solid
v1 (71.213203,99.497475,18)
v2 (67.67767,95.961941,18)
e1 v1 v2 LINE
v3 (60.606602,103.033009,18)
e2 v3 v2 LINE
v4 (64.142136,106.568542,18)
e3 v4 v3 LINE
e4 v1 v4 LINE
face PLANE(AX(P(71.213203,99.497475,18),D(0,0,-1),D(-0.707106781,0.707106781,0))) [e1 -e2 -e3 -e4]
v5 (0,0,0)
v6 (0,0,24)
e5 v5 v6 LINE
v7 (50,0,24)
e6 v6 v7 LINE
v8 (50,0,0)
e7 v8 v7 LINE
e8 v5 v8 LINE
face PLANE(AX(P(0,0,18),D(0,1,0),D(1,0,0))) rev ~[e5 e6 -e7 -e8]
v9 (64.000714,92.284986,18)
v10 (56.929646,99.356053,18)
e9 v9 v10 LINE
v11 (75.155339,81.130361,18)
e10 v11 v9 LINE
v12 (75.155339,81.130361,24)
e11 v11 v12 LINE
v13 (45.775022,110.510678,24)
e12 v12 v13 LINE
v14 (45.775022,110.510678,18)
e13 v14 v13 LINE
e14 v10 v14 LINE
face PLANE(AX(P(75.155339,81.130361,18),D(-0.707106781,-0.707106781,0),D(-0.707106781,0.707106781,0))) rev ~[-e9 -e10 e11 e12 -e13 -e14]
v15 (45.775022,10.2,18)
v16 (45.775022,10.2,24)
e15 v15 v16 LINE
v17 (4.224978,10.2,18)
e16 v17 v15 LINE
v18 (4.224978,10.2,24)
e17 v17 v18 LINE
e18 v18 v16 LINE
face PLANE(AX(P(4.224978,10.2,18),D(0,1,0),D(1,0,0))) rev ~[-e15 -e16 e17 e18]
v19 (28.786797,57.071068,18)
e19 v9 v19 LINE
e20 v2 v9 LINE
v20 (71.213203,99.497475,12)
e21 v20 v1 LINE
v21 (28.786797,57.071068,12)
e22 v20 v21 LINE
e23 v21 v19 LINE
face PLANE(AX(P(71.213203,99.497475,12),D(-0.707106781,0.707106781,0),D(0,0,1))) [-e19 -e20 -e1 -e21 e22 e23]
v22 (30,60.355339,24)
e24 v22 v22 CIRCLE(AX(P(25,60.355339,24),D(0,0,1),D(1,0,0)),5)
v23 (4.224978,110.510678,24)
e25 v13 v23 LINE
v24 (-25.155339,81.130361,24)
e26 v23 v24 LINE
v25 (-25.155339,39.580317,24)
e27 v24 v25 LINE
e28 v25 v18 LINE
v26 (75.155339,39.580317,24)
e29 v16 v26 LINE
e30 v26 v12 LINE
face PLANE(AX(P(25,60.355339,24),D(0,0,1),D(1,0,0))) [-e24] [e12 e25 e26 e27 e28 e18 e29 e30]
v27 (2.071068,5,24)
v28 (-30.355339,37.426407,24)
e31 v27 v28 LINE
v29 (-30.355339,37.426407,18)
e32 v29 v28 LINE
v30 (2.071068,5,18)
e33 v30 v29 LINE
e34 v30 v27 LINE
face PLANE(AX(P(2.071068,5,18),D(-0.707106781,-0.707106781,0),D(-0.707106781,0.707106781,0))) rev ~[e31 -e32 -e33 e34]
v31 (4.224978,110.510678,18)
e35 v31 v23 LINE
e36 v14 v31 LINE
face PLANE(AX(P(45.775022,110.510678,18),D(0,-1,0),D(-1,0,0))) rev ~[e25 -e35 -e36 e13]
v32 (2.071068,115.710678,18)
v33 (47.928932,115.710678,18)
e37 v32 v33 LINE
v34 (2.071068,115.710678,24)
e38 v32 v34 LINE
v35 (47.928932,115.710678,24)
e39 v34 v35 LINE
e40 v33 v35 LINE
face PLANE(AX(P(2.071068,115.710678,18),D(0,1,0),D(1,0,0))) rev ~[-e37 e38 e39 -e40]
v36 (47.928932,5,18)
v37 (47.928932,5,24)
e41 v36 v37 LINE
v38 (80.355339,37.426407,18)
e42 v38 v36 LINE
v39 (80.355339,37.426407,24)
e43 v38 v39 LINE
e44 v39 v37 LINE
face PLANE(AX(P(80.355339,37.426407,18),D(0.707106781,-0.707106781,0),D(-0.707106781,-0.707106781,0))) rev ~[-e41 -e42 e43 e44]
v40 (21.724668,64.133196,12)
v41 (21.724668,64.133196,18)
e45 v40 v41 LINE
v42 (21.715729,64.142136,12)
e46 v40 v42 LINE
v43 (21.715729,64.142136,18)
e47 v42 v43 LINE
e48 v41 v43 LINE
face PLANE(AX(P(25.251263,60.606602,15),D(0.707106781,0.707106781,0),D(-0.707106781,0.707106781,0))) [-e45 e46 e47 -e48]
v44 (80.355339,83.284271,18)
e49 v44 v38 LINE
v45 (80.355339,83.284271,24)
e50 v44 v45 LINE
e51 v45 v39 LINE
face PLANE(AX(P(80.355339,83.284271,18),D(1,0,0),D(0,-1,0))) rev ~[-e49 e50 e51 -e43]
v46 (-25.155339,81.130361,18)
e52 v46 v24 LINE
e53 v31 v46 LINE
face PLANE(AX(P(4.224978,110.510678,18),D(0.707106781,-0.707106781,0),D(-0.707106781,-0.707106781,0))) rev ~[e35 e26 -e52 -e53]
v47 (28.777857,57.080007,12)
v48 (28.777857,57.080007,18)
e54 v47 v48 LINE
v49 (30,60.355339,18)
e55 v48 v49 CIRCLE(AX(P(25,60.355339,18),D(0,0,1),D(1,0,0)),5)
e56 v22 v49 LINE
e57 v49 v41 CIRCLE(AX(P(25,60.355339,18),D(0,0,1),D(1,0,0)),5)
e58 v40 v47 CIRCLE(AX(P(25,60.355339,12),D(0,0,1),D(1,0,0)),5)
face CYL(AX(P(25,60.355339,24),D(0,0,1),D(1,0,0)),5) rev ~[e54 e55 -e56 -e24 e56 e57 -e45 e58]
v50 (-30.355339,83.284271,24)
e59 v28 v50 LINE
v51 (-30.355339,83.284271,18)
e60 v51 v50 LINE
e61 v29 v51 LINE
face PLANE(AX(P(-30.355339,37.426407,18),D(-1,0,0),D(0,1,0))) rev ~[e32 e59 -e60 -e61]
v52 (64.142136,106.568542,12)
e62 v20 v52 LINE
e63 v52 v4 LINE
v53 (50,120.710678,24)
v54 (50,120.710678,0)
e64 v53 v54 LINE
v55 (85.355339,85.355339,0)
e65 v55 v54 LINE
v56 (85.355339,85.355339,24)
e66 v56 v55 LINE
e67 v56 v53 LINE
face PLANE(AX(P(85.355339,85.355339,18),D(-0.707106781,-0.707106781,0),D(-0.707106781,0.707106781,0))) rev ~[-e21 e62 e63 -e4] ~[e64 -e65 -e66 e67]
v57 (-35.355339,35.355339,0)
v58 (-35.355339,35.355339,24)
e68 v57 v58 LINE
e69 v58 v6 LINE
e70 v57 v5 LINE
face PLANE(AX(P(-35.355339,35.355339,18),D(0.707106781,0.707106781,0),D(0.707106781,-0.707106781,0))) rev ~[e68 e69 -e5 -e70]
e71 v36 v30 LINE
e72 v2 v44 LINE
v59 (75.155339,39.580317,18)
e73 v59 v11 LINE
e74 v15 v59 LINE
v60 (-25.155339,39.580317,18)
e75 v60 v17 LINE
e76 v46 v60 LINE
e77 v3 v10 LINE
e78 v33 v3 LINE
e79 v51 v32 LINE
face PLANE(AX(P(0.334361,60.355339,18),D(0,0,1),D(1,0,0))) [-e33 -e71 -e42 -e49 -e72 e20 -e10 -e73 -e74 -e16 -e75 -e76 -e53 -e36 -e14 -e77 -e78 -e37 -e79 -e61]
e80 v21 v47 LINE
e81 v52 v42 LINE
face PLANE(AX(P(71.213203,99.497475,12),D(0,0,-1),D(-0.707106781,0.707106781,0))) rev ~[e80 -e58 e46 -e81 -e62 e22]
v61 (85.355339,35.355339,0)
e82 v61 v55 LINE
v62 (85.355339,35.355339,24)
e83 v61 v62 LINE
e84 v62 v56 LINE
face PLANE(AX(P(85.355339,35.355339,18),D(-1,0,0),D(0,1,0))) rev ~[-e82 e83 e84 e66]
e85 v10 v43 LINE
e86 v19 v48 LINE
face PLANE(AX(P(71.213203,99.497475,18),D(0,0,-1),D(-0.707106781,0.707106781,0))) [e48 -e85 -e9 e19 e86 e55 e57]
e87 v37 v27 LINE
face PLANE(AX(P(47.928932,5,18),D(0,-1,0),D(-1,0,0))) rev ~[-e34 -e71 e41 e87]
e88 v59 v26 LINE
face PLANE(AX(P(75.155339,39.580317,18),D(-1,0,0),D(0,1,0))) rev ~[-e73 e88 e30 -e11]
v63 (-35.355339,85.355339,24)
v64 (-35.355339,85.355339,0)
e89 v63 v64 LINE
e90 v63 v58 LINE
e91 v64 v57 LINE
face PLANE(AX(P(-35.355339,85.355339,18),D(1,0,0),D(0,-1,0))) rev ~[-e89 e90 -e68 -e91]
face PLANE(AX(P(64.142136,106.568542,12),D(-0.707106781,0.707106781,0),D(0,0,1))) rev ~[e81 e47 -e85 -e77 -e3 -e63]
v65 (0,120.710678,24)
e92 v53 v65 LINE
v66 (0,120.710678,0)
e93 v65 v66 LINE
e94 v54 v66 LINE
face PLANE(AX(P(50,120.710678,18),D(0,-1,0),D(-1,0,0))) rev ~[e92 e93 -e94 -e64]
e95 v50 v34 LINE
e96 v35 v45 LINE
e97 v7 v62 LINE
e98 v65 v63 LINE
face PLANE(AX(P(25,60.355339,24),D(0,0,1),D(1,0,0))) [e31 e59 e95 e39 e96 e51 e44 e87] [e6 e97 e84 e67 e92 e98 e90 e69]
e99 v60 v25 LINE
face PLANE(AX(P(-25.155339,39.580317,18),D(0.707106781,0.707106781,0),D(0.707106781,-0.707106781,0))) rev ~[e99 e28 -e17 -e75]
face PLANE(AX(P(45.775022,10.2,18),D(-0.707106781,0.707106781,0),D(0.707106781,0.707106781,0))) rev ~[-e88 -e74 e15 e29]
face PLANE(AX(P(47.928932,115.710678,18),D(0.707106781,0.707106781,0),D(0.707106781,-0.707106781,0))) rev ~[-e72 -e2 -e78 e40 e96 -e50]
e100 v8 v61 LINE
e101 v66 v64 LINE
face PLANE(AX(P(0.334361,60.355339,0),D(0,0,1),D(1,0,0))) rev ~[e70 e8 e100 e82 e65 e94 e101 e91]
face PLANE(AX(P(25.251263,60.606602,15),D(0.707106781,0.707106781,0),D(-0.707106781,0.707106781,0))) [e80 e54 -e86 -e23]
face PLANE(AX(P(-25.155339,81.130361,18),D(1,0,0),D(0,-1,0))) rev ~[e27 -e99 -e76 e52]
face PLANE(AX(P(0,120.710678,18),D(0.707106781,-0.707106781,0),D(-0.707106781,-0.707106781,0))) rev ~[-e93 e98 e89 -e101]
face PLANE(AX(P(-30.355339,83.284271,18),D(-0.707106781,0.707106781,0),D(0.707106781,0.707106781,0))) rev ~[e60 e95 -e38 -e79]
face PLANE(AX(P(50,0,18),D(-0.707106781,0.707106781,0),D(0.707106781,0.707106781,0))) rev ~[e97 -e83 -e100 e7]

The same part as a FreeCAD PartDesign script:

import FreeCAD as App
import Part
import Sketcher
Q = App.Units.Quantity

doc = App.newDocument("Part")
body = doc.addObject("PartDesign::Body", "Body")

# Sketch on XY plane
sketch1 = body.newObject("Sketcher::SketchObject", "Sketch")
sketch1.AttachmentSupport = (doc.getObject("XY_Plane"), [""])
sketch1.MapMode = "FlatFace"
sketch1.addGeometry(Part.LineSegment(App.Vector(-35.355339, 35.355339, 0), App.Vector(0, 0, 0)), False)
sketch1.addGeometry(Part.LineSegment(App.Vector(0, 0, 0), App.Vector(50, 0, 0)), False)
sketch1.addGeometry(Part.LineSegment(App.Vector(50, 0, 0), App.Vector(85.355339, 35.355339, 0)), False)
sketch1.addGeometry(Part.LineSegment(App.Vector(85.355339, 35.355339, 0), App.Vector(85.355339, 85.355339, 0)), False)
sketch1.addGeometry(Part.LineSegment(App.Vector(85.355339, 85.355339, 0), App.Vector(50, 120.710678, 0)), False)
sketch1.addGeometry(Part.LineSegment(App.Vector(50, 120.710678, 0), App.Vector(0, 120.710678, 0)), False)
sketch1.addGeometry(Part.LineSegment(App.Vector(0, 120.710678, 0), App.Vector(-35.355339, 85.355339, 0)), False)
sketch1.addGeometry(Part.LineSegment(App.Vector(-35.355339, 85.355339, 0), App.Vector(-35.355339, 35.355339, 0)), False)
sketch1.addConstraint(Sketcher.Constraint("Coincident", 0, 2, 1, 1))
sketch1.addConstraint(Sketcher.Constraint("Coincident", 1, 2, 2, 1))
sketch1.addConstraint(Sketcher.Constraint("Coincident", 2, 2, 3, 1))
sketch1.addConstraint(Sketcher.Constraint("Coincident", 3, 2, 4, 1))
sketch1.addConstraint(Sketcher.Constraint("Coincident", 4, 2, 5, 1))
sketch1.addConstraint(Sketcher.Constraint("Coincident", 5, 2, 6, 1))
sketch1.addConstraint(Sketcher.Constraint("Coincident", 6, 2, 7, 1))
sketch1.addConstraint(Sketcher.Constraint("Coincident", 7, 2, 0, 1))
sketch1.addConstraint(Sketcher.Constraint("Horizontal", 1))
sketch1.addConstraint(Sketcher.Constraint("Vertical", 3))
sketch1.addConstraint(Sketcher.Constraint("Horizontal", 5))
sketch1.addConstraint(Sketcher.Constraint("Vertical", 7))
sketch1.addConstraint(Sketcher.Constraint("Coincident", 0, 2, -1, 1))
sketch1.addConstraint(Sketcher.Constraint("PointOnObject", 5, 2, -2))
sketch1.addConstraint(Sketcher.Constraint("Perpendicular", 0, 2))
sketch1.addConstraint(Sketcher.Constraint("Perpendicular", 2, 4))
sketch1.addConstraint(Sketcher.Constraint("Perpendicular", 4, 6))
sketch1.addConstraint(Sketcher.Constraint("Horizontal", 3, 2, 6, 2))
sketch1.addConstraint(Sketcher.Constraint("Horizontal", 2, 2, 7, 2))
sketch1.addConstraint(Sketcher.Constraint("Vertical", 1, 2, 4, 2))
sketch1.addConstraint(Sketcher.Constraint("Equal", 5, 3))
sketch1.addConstraint(Sketcher.Constraint("DistanceX", 1, 1, 1, 2, Q("50 mm")))
sketch1.addConstraint(Sketcher.Constraint("Distance", 0, Q("50 mm")))
pad1 = body.newObject("PartDesign::Pad", "Pad")
pad1.Profile = sketch1
pad1.Length = 18

# Sketch on XY plane
sketch2 = body.newObject("Sketcher::SketchObject", "Sketch001")
sketch2.AttachmentSupport = (doc.getObject("XY_Plane"), [""])
sketch2.MapMode = "FlatFace"
sketch2.AttachmentOffset = App.Placement(App.Vector(0, 0, 18), App.Rotation())
sketch2.addGeometry(Part.LineSegment(App.Vector(-35.355339, 85.355339, 0), App.Vector(-35.355339, 35.355339, 0)), False)
sketch2.addGeometry(Part.LineSegment(App.Vector(-35.355339, 35.355339, 0), App.Vector(0, 0, 0)), False)
sketch2.addGeometry(Part.LineSegment(App.Vector(0, 0, 0), App.Vector(50, 0, 0)), False)
sketch2.addGeometry(Part.LineSegment(App.Vector(50, 0, 0), App.Vector(85.355339, 35.355339, 0)), False)
sketch2.addGeometry(Part.LineSegment(App.Vector(85.355339, 35.355339, 0), App.Vector(85.355339, 85.355339, 0)), False)
sketch2.addGeometry(Part.LineSegment(App.Vector(85.355339, 85.355339, 0), App.Vector(50, 120.710678, 0)), False)
sketch2.addGeometry(Part.LineSegment(App.Vector(50, 120.710678, 0), App.Vector(0, 120.710678, 0)), False)
sketch2.addGeometry(Part.LineSegment(App.Vector(0, 120.710678, 0), App.Vector(-35.355339, 85.355339, 0)), False)
sketch2.addGeometry(Part.LineSegment(App.Vector(47.928932, 5, 0), App.Vector(2.071068, 5, 0)), False)
sketch2.addGeometry(Part.LineSegment(App.Vector(2.071068, 5, 0), App.Vector(-30.355339, 37.426407, 0)), False)
sketch2.addGeometry(Part.LineSegment(App.Vector(-30.355339, 37.426407, 0), App.Vector(-30.355339, 83.284271, 0)), False)
sketch2.addGeometry(Part.LineSegment(App.Vector(-30.355339, 83.284271, 0), App.Vector(2.071068, 115.710678, 0)), False)
sketch2.addGeometry(Part.LineSegment(App.Vector(2.071068, 115.710678, 0), App.Vector(47.928932, 115.710678, 0)), False)
sketch2.addGeometry(Part.LineSegment(App.Vector(47.928932, 115.710678, 0), App.Vector(80.355339, 83.284271, 0)), False)
sketch2.addGeometry(Part.LineSegment(App.Vector(80.355339, 83.284271, 0), App.Vector(80.355339, 37.426407, 0)), False)
sketch2.addGeometry(Part.LineSegment(App.Vector(80.355339, 37.426407, 0), App.Vector(47.928932, 5, 0)), False)
sketch2.addGeometry(Part.LineSegment(App.Vector(-25.155339, 81.130361, 0), App.Vector(-25.155339, 39.580317, 0)), False)
sketch2.addGeometry(Part.LineSegment(App.Vector(-25.155339, 39.580317, 0), App.Vector(4.224978, 10.2, 0)), False)
sketch2.addGeometry(Part.LineSegment(App.Vector(4.224978, 10.2, 0), App.Vector(45.775022, 10.2, 0)), False)
sketch2.addGeometry(Part.LineSegment(App.Vector(45.775022, 10.2, 0), App.Vector(75.155339, 39.580317, 0)), False)
sketch2.addGeometry(Part.LineSegment(App.Vector(75.155339, 39.580317, 0), App.Vector(75.155339, 81.130361, 0)), False)
sketch2.addGeometry(Part.LineSegment(App.Vector(75.155339, 81.130361, 0), App.Vector(45.775022, 110.510678, 0)), False)
sketch2.addGeometry(Part.LineSegment(App.Vector(45.775022, 110.510678, 0), App.Vector(4.224978, 110.510678, 0)), False)
sketch2.addGeometry(Part.LineSegment(App.Vector(4.224978, 110.510678, 0), App.Vector(-25.155339, 81.130361, 0)), False)
sketch2.addConstraint(Sketcher.Constraint("Coincident", 0, 2, 1, 1))
sketch2.addConstraint(Sketcher.Constraint("Coincident", 1, 2, 2, 1))
sketch2.addConstraint(Sketcher.Constraint("Coincident", 2, 2, 3, 1))
sketch2.addConstraint(Sketcher.Constraint("Coincident", 3, 2, 4, 1))
sketch2.addConstraint(Sketcher.Constraint("Coincident", 4, 2, 5, 1))
sketch2.addConstraint(Sketcher.Constraint("Coincident", 5, 2, 6, 1))
sketch2.addConstraint(Sketcher.Constraint("Coincident", 6, 2, 7, 1))
sketch2.addConstraint(Sketcher.Constraint("Coincident", 7, 2, 0, 1))
sketch2.addConstraint(Sketcher.Constraint("Coincident", 8, 2, 9, 1))
sketch2.addConstraint(Sketcher.Constraint("Coincident", 9, 2, 10, 1))
sketch2.addConstraint(Sketcher.Constraint("Coincident", 10, 2, 11, 1))
sketch2.addConstraint(Sketcher.Constraint("Coincident", 11, 2, 12, 1))
sketch2.addConstraint(Sketcher.Constraint("Coincident", 12, 2, 13, 1))
sketch2.addConstraint(Sketcher.Constraint("Coincident", 13, 2, 14, 1))
sketch2.addConstraint(Sketcher.Constraint("Coincident", 14, 2, 15, 1))
sketch2.addConstraint(Sketcher.Constraint("Coincident", 15, 2, 8, 1))
sketch2.addConstraint(Sketcher.Constraint("Coincident", 16, 2, 17, 1))
sketch2.addConstraint(Sketcher.Constraint("Coincident", 17, 2, 18, 1))
sketch2.addConstraint(Sketcher.Constraint("Coincident", 18, 2, 19, 1))
sketch2.addConstraint(Sketcher.Constraint("Coincident", 19, 2, 20, 1))
sketch2.addConstraint(Sketcher.Constraint("Coincident", 20, 2, 21, 1))
sketch2.addConstraint(Sketcher.Constraint("Coincident", 21, 2, 22, 1))
sketch2.addConstraint(Sketcher.Constraint("Coincident", 22, 2, 23, 1))
sketch2.addConstraint(Sketcher.Constraint("Coincident", 23, 2, 16, 1))
sketch2.addConstraint(Sketcher.Constraint("Vertical", 0))
sketch2.addConstraint(Sketcher.Constraint("Horizontal", 2))
sketch2.addConstraint(Sketcher.Constraint("Vertical", 4))
sketch2.addConstraint(Sketcher.Constraint("Horizontal", 6))
sketch2.addConstraint(Sketcher.Constraint("Horizontal", 8))
sketch2.addConstraint(Sketcher.Constraint("Vertical", 10))
sketch2.addConstraint(Sketcher.Constraint("Horizontal", 12))
sketch2.addConstraint(Sketcher.Constraint("Vertical", 14))
sketch2.addConstraint(Sketcher.Constraint("Vertical", 16))
sketch2.addConstraint(Sketcher.Constraint("Horizontal", 18))
sketch2.addConstraint(Sketcher.Constraint("Vertical", 20))
sketch2.addConstraint(Sketcher.Constraint("Horizontal", 22))
sketch2.addConstraint(Sketcher.Constraint("Coincident", 1, 2, -1, 1))
sketch2.addConstraint(Sketcher.Constraint("PointOnObject", 6, 2, -2))
sketch2.addConstraint(Sketcher.Constraint("Perpendicular", 1, 3))
sketch2.addConstraint(Sketcher.Constraint("Perpendicular", 3, 5))
sketch2.addConstraint(Sketcher.Constraint("Perpendicular", 5, 7))
sketch2.addConstraint(Sketcher.Constraint("Perpendicular", 7, 9))
sketch2.addConstraint(Sketcher.Constraint("Perpendicular", 9, 11))
sketch2.addConstraint(Sketcher.Constraint("Perpendicular", 11, 13))
sketch2.addConstraint(Sketcher.Constraint("Perpendicular", 13, 15))
sketch2.addConstraint(Sketcher.Constraint("Perpendicular", 15, 17))
sketch2.addConstraint(Sketcher.Constraint("Perpendicular", 17, 19))
sketch2.addConstraint(Sketcher.Constraint("Perpendicular", 19, 21))
sketch2.addConstraint(Sketcher.Constraint("Perpendicular", 21, 23))
sketch2.addConstraint(Sketcher.Constraint("Horizontal", 0, 2, 3, 2))
sketch2.addConstraint(Sketcher.Constraint("Horizontal", 4, 2, 7, 2))
sketch2.addConstraint(Sketcher.Constraint("Horizontal", 10, 2, 13, 2))
sketch2.addConstraint(Sketcher.Constraint("Horizontal", 9, 2, 14, 2))
sketch2.addConstraint(Sketcher.Constraint("Horizontal", 16, 2, 19, 2))
sketch2.addConstraint(Sketcher.Constraint("Horizontal", 20, 2, 23, 2))
sketch2.addConstraint(Sketcher.Constraint("Vertical", 2, 2, 5, 2))
sketch2.addConstraint(Sketcher.Constraint("Vertical", 8, 2, 11, 2))
sketch2.addConstraint(Sketcher.Constraint("Vertical", 18, 2, 21, 2))
sketch2.addConstraint(Sketcher.Constraint("Equal", 6, 0))
sketch2.addConstraint(Sketcher.Constraint("Equal", 12, 10))
sketch2.addConstraint(Sketcher.Constraint("Equal", 22, 16))
sketch2.addConstraint(Sketcher.Constraint("DistanceX", 2, 1, 2, 2, Q("50 mm")))
sketch2.addConstraint(Sketcher.Constraint("Distance", 1, Q("50 mm")))
sketch2.addConstraint(Sketcher.Constraint("DistanceY", -1, 1, 8, 2, Q("5 mm")))
sketch2.addConstraint(Sketcher.Constraint("DistanceX", 0, 2, 9, 2, Q("5 mm")))
sketch2.addConstraint(Sketcher.Constraint("DistanceY", 11, 2, 6, 2, Q("5 mm")))
sketch2.addConstraint(Sketcher.Constraint("DistanceY", -1, 1, 17, 2, Q("10.2 mm")))
sketch2.addConstraint(Sketcher.Constraint("DistanceX", 9, 2, 16, 2, Q("5.2 mm")))
sketch2.addConstraint(Sketcher.Constraint("DistanceX", 19, 2, 14, 2, Q("5.2 mm")))
sketch2.addConstraint(Sketcher.Constraint("DistanceX", 8, 2, 8, 1, Q("45.857864 mm")))
sketch2.addConstraint(Sketcher.Constraint("DistanceX", 18, 1, 18, 2, Q("41.550043 mm")))
pad2 = body.newObject("PartDesign::Pad", "Pad001")
pad2.Profile = sketch2
pad2.Length = 6

# Sketch on XY plane
sketch3 = body.newObject("Sketcher::SketchObject", "Sketch002")
sketch3.AttachmentSupport = (doc.getObject("XY_Plane"), [""])
sketch3.MapMode = "FlatFace"
sketch3.AttachmentOffset = App.Placement(App.Vector(0, 0, 24), App.Rotation())
sketch3.addGeometry(Part.Circle(App.Vector(25, 60.355339, 0), App.Vector(0, 0, 1), 5), False)
sketch3.addConstraint(Sketcher.Constraint("Diameter", 0, Q("10 mm")))
sketch3.addConstraint(Sketcher.Constraint("DistanceX", -1, 1, 0, 3, Q("25 mm")))
sketch3.addConstraint(Sketcher.Constraint("DistanceY", -1, 1, 0, 3, Q("60.355339 mm")))
pocket1 = body.newObject("PartDesign::Pocket", "Pocket")
pocket1.Profile = sketch3
pocket1.Length = 12

# Sketch on an angled plane
sketch4 = body.newObject("Sketcher::SketchObject", "Sketch003")
sketch4.Placement = App.Placement(App.Vector(85.355339, 85.355339, 0), App.Rotation(App.Vector(-0.707106781, 0.707106781, 0), App.Vector(0, 0, 0.999999999), App.Vector(0.707106781, 0.707106781, 0), "ZXY"))
sketch4.addGeometry(Part.LineSegment(App.Vector(20, 18, 0), App.Vector(20, 12, 0)), False)
sketch4.addGeometry(Part.LineSegment(App.Vector(20, 12, 0), App.Vector(30, 12, 0)), False)
sketch4.addGeometry(Part.LineSegment(App.Vector(30, 12, 0), App.Vector(30, 18, 0)), False)
sketch4.addGeometry(Part.LineSegment(App.Vector(30, 18, 0), App.Vector(20, 18, 0)), False)
sketch4.addConstraint(Sketcher.Constraint("Coincident", 0, 2, 1, 1))
sketch4.addConstraint(Sketcher.Constraint("Coincident", 1, 2, 2, 1))
sketch4.addConstraint(Sketcher.Constraint("Coincident", 2, 2, 3, 1))
sketch4.addConstraint(Sketcher.Constraint("Coincident", 3, 2, 0, 1))
sketch4.addConstraint(Sketcher.Constraint("Vertical", 0))
sketch4.addConstraint(Sketcher.Constraint("Horizontal", 1))
sketch4.addConstraint(Sketcher.Constraint("Vertical", 2))
sketch4.addConstraint(Sketcher.Constraint("Horizontal", 3))
sketch4.addConstraint(Sketcher.Constraint("DistanceX", 1, 1, 1, 2, Q("10 mm")))
sketch4.addConstraint(Sketcher.Constraint("DistanceY", 0, 2, 0, 1, Q("6 mm")))
sketch4.addConstraint(Sketcher.Constraint("DistanceX", -1, 1, 0, 2, Q("20 mm")))
sketch4.addConstraint(Sketcher.Constraint("DistanceY", -1, 1, 0, 2, Q("12 mm")))
pocket2 = body.newObject("PartDesign::Pocket", "Pocket001")
pocket2.Profile = sketch4
pocket2.Length = 60

doc.recompute()
